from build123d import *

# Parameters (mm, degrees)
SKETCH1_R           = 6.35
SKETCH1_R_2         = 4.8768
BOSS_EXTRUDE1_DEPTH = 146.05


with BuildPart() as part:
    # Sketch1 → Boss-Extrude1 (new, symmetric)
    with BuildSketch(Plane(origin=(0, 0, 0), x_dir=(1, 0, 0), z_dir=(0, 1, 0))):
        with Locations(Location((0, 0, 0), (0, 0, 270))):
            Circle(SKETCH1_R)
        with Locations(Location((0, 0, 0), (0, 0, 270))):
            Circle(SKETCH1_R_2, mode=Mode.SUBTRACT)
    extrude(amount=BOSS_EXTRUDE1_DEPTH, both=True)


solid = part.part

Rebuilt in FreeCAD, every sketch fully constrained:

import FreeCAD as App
import Part
import Sketcher

V = App.Vector
Q = App.Units.Quantity

doc = App.newDocument("Part")
params = doc.addObject("Spreadsheet::Sheet", "Params")
for row, (alias, value) in enumerate([
    ("sketch1_diameter", "0.5 in"),
    ("sketch1_diameter2", "0.384 in"),
    ("pad1_length", "11.5 in"),
], start=1):
    params.set(f"A{row}", alias)
    params.set(f"B{row}", "=" + value)
    params.setAlias(f"B{row}", alias)

body = doc.addObject("PartDesign::Body", "Body")

sketch1 = body.newObject("Sketcher::SketchObject", "Sketch")
sketch1.AttachmentSupport = (doc.getObject("XZ_Plane"), [""])
sketch1.MapMode = "FlatFace"
sketch1.addGeometry(Part.Circle(V(0, 0, 0), V(0, 0, 1), 6.3), False)
sketch1.addGeometry(Part.Circle(V(0, 0, 0), V(0, 0, 1), 4.9), False)
sketch1.addConstraint(Sketcher.Constraint("Coincident", 0, 3, -1, 1))
sketch1.addConstraint(Sketcher.Constraint("Coincident", 1, 3, -1, 1))
sketch1.addConstraint(Sketcher.Constraint("Diameter", 0, Q("0.5 in")))
sketch1.addConstraint(Sketcher.Constraint("Diameter", 1, Q("0.384 in")))
sketch1.setExpression("Constraints[2]", "Params.sketch1_diameter")
sketch1.setExpression("Constraints[3]", "Params.sketch1_diameter2")
pad1 = body.newObject("PartDesign::Pad", "Pad")
pad1.Profile = sketch1
pad1.setExpression("Length", "Params.pad1_length")
pad1.Midplane = True

doc.recompute()
